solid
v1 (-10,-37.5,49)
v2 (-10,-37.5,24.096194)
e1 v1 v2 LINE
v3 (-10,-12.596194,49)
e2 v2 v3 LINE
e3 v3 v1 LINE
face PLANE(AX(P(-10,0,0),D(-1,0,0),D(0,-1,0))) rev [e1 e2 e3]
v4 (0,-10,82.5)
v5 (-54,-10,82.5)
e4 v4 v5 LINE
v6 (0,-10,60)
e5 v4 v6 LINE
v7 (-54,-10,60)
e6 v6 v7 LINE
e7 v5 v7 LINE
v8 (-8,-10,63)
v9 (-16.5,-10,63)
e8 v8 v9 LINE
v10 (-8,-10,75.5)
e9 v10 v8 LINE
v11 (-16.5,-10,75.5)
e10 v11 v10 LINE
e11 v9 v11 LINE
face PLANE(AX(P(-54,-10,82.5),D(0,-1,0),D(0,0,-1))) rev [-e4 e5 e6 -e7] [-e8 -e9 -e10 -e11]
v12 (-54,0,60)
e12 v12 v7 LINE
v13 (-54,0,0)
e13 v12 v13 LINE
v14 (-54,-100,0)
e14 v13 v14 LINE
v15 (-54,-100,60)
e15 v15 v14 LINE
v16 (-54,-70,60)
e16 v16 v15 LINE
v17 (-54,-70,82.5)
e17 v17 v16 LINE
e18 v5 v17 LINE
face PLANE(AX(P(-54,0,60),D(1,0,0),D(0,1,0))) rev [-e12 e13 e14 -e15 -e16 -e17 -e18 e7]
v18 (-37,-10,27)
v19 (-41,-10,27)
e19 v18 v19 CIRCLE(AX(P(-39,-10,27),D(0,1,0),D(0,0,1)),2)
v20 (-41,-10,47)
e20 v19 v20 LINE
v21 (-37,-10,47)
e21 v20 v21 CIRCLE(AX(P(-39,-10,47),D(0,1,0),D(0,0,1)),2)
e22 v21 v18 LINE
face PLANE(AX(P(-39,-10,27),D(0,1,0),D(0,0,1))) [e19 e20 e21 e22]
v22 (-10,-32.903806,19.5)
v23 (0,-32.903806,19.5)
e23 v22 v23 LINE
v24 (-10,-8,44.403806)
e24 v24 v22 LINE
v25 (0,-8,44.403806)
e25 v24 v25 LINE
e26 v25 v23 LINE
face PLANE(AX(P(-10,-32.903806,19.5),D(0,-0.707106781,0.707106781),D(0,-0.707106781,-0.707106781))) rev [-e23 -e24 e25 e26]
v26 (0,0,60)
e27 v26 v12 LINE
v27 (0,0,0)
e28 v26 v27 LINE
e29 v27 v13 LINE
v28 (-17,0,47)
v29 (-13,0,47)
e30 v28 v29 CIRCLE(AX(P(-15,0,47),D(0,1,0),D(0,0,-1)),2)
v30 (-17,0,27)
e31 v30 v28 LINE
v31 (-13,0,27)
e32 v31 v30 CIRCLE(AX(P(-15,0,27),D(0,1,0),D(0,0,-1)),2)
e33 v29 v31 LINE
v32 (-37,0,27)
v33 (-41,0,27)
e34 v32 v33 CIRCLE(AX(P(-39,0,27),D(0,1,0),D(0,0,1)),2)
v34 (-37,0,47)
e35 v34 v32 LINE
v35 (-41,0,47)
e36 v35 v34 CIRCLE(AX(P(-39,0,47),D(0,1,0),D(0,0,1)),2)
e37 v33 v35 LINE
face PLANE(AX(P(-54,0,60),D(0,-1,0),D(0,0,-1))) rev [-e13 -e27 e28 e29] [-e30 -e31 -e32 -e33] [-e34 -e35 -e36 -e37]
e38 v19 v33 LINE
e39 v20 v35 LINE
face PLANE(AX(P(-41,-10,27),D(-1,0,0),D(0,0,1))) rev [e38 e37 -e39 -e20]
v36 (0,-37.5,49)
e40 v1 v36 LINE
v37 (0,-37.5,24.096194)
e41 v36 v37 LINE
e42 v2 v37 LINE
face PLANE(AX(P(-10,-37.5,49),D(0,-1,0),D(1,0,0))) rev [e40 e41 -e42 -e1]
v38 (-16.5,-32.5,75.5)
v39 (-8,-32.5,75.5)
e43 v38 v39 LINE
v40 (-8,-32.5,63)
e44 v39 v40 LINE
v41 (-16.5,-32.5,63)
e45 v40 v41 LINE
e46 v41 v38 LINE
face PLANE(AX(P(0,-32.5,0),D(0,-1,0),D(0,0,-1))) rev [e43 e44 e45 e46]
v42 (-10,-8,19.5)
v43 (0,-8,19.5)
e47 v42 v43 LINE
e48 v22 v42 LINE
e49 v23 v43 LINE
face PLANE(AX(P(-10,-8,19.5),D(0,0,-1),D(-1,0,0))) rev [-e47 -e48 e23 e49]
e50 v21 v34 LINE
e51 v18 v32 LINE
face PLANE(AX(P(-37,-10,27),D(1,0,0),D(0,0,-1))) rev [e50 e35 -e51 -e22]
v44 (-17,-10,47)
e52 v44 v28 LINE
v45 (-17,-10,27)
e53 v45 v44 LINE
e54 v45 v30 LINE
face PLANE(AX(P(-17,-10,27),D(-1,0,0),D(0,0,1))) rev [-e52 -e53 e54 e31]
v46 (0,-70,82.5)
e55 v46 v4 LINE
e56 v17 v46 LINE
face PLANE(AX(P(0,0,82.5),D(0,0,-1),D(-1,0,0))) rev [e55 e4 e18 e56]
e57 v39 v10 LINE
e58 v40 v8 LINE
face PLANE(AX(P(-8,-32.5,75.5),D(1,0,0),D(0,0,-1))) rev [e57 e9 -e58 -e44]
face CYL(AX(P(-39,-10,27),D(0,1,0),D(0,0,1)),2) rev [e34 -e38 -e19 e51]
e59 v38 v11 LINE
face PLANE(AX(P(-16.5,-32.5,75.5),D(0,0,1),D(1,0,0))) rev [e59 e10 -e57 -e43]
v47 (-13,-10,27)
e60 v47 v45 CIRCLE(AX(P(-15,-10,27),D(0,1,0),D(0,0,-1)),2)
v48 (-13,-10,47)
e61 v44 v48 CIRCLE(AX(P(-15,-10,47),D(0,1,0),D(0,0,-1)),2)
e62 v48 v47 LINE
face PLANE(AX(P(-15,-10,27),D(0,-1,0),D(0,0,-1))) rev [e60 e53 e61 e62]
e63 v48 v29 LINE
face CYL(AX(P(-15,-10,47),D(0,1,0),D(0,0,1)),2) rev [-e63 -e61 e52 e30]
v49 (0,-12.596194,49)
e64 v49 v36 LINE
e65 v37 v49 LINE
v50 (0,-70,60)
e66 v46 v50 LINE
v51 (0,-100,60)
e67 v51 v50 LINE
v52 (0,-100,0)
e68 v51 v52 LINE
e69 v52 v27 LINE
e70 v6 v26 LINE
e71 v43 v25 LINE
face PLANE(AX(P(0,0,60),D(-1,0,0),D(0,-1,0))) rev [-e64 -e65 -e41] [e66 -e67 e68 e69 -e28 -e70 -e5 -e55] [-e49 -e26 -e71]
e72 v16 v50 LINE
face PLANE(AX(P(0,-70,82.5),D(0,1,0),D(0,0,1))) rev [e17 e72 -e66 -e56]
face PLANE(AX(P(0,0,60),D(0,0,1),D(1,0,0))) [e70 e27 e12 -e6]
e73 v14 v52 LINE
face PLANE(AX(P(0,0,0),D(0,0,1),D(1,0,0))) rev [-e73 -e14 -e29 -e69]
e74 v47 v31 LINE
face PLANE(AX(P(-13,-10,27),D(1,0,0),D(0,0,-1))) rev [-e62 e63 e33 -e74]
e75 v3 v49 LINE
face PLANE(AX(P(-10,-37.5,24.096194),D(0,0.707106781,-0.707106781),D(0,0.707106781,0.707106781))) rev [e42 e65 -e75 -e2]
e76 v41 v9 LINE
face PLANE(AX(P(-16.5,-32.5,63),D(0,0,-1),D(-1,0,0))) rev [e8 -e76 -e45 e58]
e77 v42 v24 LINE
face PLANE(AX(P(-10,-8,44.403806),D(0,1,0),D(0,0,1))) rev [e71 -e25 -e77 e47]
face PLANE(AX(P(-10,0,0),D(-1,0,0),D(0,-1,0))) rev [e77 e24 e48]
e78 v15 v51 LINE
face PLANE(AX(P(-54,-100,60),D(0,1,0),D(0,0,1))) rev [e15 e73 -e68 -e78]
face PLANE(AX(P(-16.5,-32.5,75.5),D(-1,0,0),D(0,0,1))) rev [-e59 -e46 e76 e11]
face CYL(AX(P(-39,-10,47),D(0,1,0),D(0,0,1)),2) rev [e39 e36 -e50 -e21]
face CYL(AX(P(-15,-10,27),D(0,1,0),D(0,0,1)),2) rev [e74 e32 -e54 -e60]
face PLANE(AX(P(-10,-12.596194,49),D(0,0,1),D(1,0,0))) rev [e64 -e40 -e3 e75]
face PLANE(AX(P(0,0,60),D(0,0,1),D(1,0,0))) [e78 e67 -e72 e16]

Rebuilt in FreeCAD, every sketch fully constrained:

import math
import FreeCAD as App
import Part
import Sketcher

V = App.Vector

doc = App.newDocument("Part")
body = doc.addObject("PartDesign::Body", "Body")

# Sketch on XY plane
sketch1 = body.newObject("Sketcher::SketchObject", "Sketch")
sketch1.AttachmentSupport = (doc.getObject("XY_Plane"), [""])
sketch1.MapMode = "FlatFace"
sketch1.addGeometry([
    Part.LineSegment(V(-54, 0, 0), V(-54, -100, 0)),
    Part.LineSegment(V(-54, -100, 0), V(0, -100, 0)),
    Part.LineSegment(V(0, -100, 0), V(0, 0, 0)),
    Part.LineSegment(V(0, 0, 0), V(-54, 0, 0)),
], False)
sketch1.addConstraint([
    Sketcher.Constraint("Coincident", 0, 2, 1, 1),
    Sketcher.Constraint("Coincident", 1, 2, 2, 1),
    Sketcher.Constraint("Coincident", 2, 2, 3, 1),
    Sketcher.Constraint("Coincident", 3, 2, 0, 1),
    Sketcher.Constraint("Vertical", 0),
    Sketcher.Constraint("Horizontal", 1),
    Sketcher.Constraint("Vertical", 2),
    Sketcher.Constraint("Horizontal", 3),
    Sketcher.Constraint("Coincident", 2, 2, -1, 1),
    Sketcher.Constraint("DistanceX", 1, 1, 1, 2, 54.0),
    Sketcher.Constraint("DistanceY", 0, 2, 0, 1, 100.0),
])
pad1 = body.newObject("PartDesign::Pad", "Pad")
pad1.Profile = sketch1
pad1.Length = 60

# Sketch on XY plane
sketch2 = body.newObject("Sketcher::SketchObject", "Sketch001")
sketch2.AttachmentSupport = (doc.getObject("XY_Plane"), [""])
sketch2.MapMode = "FlatFace"
sketch2.AttachmentOffset = App.Placement(V(0, 0, 60), App.Rotation())
sketch2.addGeometry([
    Part.LineSegment(V(-54, -10, 0), V(-54, -70, 0)),
    Part.LineSegment(V(-54, -70, 0), V(0, -70, 0)),
    Part.LineSegment(V(0, -70, 0), V(0, -10, 0)),
    Part.LineSegment(V(0, -10, 0), V(-54, -10, 0)),
], False)
sketch2.addConstraint([
    Sketcher.Constraint("Coincident", 0, 2, 1, 1),
    Sketcher.Constraint("Coincident", 1, 2, 2, 1),
    Sketcher.Constraint("Coincident", 2, 2, 3, 1),
    Sketcher.Constraint("Coincident", 3, 2, 0, 1),
    Sketcher.Constraint("Vertical", 0),
    Sketcher.Constraint("Horizontal", 1),
    Sketcher.Constraint("Vertical", 2),
    Sketcher.Constraint("Horizontal", 3),
    Sketcher.Constraint("PointOnObject", 1, 2, -2),
    Sketcher.Constraint("DistanceX", 1, 1, 1, 2, 54.0),
    Sketcher.Constraint("DistanceY", 0, 2, 0, 1, 60.0),
    Sketcher.Constraint("DistanceY", 0, 2, -1, 1, 70.0),
])
pad2 = body.newObject("PartDesign::Pad", "Pad001")
pad2.Profile = sketch2
pad2.Length = 22.5

# Sketch on XZ plane
sketch3 = body.newObject("Sketcher::SketchObject", "Sketch002")
sketch3.AttachmentSupport = (doc.getObject("XZ_Plane"), [""])
sketch3.MapMode = "FlatFace"
sketch3.AttachmentOffset = App.Placement(V(0, 0, 10), App.Rotation())
sketch3.addGeometry([
    Part.LineSegment(V(-16.5, 63, 0), V(-16.5, 75.5, 0)),
    Part.LineSegment(V(-16.5, 75.5, 0), V(-8, 75.5, 0)),
    Part.LineSegment(V(-8, 75.5, 0), V(-8, 63, 0)),
    Part.LineSegment(V(-8, 63, 0), V(-16.5, 63, 0)),
], False)
sketch3.addConstraint([
    Sketcher.Constraint("Coincident", 0, 2, 1, 1),
    Sketcher.Constraint("Coincident", 1, 2, 2, 1),
    Sketcher.Constraint("Coincident", 2, 2, 3, 1),
    Sketcher.Constraint("Coincident", 3, 2, 0, 1),
    Sketcher.Constraint("Vertical", 0),
    Sketcher.Constraint("Horizontal", 1),
    Sketcher.Constraint("Vertical", 2),
    Sketcher.Constraint("Horizontal", 3),
    Sketcher.Constraint("DistanceX", 1, 1, 1, 2, 8.5),
    Sketcher.Constraint("DistanceY", 0, 1, 0, 2, 12.5),
    Sketcher.Constraint("DistanceX", 1, 2, -1, 1, 8.0),
    Sketcher.Constraint("DistanceY", -1, 1, 2, 2, 63.0),
])
pocket1 = body.newObject("PartDesign::Pocket", "Pocket")
pocket1.Profile = sketch3
pocket1.Length = 22.5
pocket1.Reversed = True

# Sketch on XZ plane
sketch4 = body.newObject("Sketcher::SketchObject", "Sketch003")
sketch4.AttachmentSupport = (doc.getObject("XZ_Plane"), [""])
sketch4.MapMode = "FlatFace"
sketch4.addGeometry([
    Part.LineSegment(V(-37, 47, 0), V(-37, 27, 0)),  # 0
    Part.ArcOfCircle(Part.Circle(V(-39, 27, 0), V(0, 0, 1), 2), math.radians(180), math.radians(360)),  # 1
    Part.LineSegment(V(-41, 27, 0), V(-41, 47, 0)),  # 2
    Part.ArcOfCircle(Part.Circle(V(-39, 47, 0), V(0, 0, 1), 2), math.radians(0), math.radians(180)),  # 3
    Part.LineSegment(V(-17, 27, 0), V(-17, 47, 0)),  # 4
    Part.ArcOfCircle(Part.Circle(V(-15, 47, 0), V(0, 0, 1), 2), math.radians(0), math.radians(180)),  # 5
    Part.LineSegment(V(-13, 47, 0), V(-13, 27, 0)),  # 6
    Part.ArcOfCircle(Part.Circle(V(-15, 27, 0), V(0, 0, 1), 2), math.radians(180), math.radians(360)),  # 7
], False)
sketch4.addConstraint([
    Sketcher.Constraint("Tangent", 0, 2, 1, 2),
    Sketcher.Constraint("Tangent", 1, 1, 2, 1),
    Sketcher.Constraint("Tangent", 2, 2, 3, 2),
    Sketcher.Constraint("Tangent", 3, 1, 0, 1),
    Sketcher.Constraint("Tangent", 4, 2, 5, 2),
    Sketcher.Constraint("Tangent", 5, 1, 6, 1),
    Sketcher.Constraint("Tangent", 6, 2, 7, 2),
    Sketcher.Constraint("Tangent", 7, 1, 4, 1),
    Sketcher.Constraint("Vertical", 0),
    Sketcher.Constraint("Vertical", 2),
    Sketcher.Constraint("Vertical", 4),
    Sketcher.Constraint("Vertical", 6),
    Sketcher.Constraint("Equal", 3, 5),
    Sketcher.Constraint("Horizontal", 3, 3, 5, 3),
    Sketcher.Constraint("Horizontal", 1, 3, 7, 3),
    Sketcher.Constraint("Radius", 1, 2.0),
    Sketcher.Constraint("DistanceY", 0, 2, 0, 1, 20.0),
    Sketcher.Constraint("DistanceX", 1, 3, -1, 1, 39.0),
    Sketcher.Constraint("DistanceY", -1, 1, 1, 3, 27.0),
    Sketcher.Constraint("DistanceX", 5, 3, -1, 1, 15.0),
])
pocket2 = body.newObject("PartDesign::Pocket", "Pocket001")
pocket2.Profile = sketch4
pocket2.Length = 10
pocket2.Reversed = True

# Sketch on YZ plane
sketch5 = body.newObject("Sketcher::SketchObject", "Sketch004")
sketch5.AttachmentSupport = (doc.getObject("YZ_Plane"), [""])
sketch5.MapMode = "FlatFace"
sketch5.addGeometry([
    Part.LineSegment(V(-8, 19.5, 0), V(-8, 44.403806, 0)),  # 0
    Part.LineSegment(V(-8, 44.403806, 0), V(-32.903806, 19.5, 0)),  # 1
    Part.LineSegment(V(-32.903806, 19.5, 0), V(-8, 19.5, 0)),  # 2
    Part.LineSegment(V(-37.5, 24.096194, 0), V(-12.596194, 49, 0)),  # 3
    Part.LineSegment(V(-12.596194, 49, 0), V(-37.5, 49, 0)),  # 4
    Part.LineSegment(V(-37.5, 49, 0), V(-37.5, 24.096194, 0)),  # 5
], False)
sketch5.addConstraint([
    Sketcher.Constraint("Coincident", 0, 2, 1, 1),
    Sketcher.Constraint("Coincident", 1, 2, 2, 1),
    Sketcher.Constraint("Coincident", 2, 2, 0, 1),
    Sketcher.Constraint("Coincident", 3, 2, 4, 1),
    Sketcher.Constraint("Coincident", 4, 2, 5, 1),
    Sketcher.Constraint("Coincident", 5, 2, 3, 1),
    Sketcher.Constraint("Vertical", 0),
    Sketcher.Constraint("Horizontal", 2),
    Sketcher.Constraint("Horizontal", 4),
    Sketcher.Constraint("Vertical", 5),
    Sketcher.Constraint("Parallel", 1, 3),
    Sketcher.Constraint("Equal", 2, 4),
    Sketcher.Constraint("Equal", 4, 0),
    Sketcher.Constraint("DistanceX", 0, 2, -1, 1, 8.0),
    Sketcher.Constraint("DistanceY", -1, 1, 3, 2, 49.0),
    Sketcher.Constraint("DistanceY", -1, 1, 1, 2, 19.5),
    Sketcher.Constraint("DistanceX", 4, 2, -1, 1, 37.5),
    Sketcher.Constraint("Distance", 1, 35.2193),
])
pocket3 = body.newObject("PartDesign::Pocket", "Pocket002")
pocket3.Profile = sketch5
pocket3.Length = 10

doc.recompute()
